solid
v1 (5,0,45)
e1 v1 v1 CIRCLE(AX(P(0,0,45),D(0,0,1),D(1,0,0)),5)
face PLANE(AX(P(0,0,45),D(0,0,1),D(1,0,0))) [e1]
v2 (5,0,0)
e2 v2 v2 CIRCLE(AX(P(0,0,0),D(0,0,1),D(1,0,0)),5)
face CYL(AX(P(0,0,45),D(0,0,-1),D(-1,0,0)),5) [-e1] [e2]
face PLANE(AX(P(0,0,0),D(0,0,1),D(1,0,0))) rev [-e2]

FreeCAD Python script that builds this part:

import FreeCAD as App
import Part
import Sketcher

V = App.Vector
Q = App.Units.Quantity

doc = App.newDocument("Part")
body = doc.addObject("PartDesign::Body", "Body")

# Sketch on XY plane
sketch1 = doc.addObject("Sketcher::SketchObject", "Sketch")
body.addObject(sketch1)
sketch1.AttachmentSupport = (doc.XY_Plane, [""])
sketch1.MapMode = "FlatFace"
sketch1.addGeometry(Part.Circle(V(0, 0, 0), V(0, 0, 1), 5), False)
sketch1.addConstraint(Sketcher.Constraint("Coincident", 0, 3, -1, 1))
sketch1.addConstraint(Sketcher.Constraint("Diameter", 0, Q("10 mm")))
pad1 = doc.addObject("PartDesign::Pad", "Pad")
body.addObject(pad1)
pad1.Profile = sketch1
pad1.Length = 45

doc.recompute()
